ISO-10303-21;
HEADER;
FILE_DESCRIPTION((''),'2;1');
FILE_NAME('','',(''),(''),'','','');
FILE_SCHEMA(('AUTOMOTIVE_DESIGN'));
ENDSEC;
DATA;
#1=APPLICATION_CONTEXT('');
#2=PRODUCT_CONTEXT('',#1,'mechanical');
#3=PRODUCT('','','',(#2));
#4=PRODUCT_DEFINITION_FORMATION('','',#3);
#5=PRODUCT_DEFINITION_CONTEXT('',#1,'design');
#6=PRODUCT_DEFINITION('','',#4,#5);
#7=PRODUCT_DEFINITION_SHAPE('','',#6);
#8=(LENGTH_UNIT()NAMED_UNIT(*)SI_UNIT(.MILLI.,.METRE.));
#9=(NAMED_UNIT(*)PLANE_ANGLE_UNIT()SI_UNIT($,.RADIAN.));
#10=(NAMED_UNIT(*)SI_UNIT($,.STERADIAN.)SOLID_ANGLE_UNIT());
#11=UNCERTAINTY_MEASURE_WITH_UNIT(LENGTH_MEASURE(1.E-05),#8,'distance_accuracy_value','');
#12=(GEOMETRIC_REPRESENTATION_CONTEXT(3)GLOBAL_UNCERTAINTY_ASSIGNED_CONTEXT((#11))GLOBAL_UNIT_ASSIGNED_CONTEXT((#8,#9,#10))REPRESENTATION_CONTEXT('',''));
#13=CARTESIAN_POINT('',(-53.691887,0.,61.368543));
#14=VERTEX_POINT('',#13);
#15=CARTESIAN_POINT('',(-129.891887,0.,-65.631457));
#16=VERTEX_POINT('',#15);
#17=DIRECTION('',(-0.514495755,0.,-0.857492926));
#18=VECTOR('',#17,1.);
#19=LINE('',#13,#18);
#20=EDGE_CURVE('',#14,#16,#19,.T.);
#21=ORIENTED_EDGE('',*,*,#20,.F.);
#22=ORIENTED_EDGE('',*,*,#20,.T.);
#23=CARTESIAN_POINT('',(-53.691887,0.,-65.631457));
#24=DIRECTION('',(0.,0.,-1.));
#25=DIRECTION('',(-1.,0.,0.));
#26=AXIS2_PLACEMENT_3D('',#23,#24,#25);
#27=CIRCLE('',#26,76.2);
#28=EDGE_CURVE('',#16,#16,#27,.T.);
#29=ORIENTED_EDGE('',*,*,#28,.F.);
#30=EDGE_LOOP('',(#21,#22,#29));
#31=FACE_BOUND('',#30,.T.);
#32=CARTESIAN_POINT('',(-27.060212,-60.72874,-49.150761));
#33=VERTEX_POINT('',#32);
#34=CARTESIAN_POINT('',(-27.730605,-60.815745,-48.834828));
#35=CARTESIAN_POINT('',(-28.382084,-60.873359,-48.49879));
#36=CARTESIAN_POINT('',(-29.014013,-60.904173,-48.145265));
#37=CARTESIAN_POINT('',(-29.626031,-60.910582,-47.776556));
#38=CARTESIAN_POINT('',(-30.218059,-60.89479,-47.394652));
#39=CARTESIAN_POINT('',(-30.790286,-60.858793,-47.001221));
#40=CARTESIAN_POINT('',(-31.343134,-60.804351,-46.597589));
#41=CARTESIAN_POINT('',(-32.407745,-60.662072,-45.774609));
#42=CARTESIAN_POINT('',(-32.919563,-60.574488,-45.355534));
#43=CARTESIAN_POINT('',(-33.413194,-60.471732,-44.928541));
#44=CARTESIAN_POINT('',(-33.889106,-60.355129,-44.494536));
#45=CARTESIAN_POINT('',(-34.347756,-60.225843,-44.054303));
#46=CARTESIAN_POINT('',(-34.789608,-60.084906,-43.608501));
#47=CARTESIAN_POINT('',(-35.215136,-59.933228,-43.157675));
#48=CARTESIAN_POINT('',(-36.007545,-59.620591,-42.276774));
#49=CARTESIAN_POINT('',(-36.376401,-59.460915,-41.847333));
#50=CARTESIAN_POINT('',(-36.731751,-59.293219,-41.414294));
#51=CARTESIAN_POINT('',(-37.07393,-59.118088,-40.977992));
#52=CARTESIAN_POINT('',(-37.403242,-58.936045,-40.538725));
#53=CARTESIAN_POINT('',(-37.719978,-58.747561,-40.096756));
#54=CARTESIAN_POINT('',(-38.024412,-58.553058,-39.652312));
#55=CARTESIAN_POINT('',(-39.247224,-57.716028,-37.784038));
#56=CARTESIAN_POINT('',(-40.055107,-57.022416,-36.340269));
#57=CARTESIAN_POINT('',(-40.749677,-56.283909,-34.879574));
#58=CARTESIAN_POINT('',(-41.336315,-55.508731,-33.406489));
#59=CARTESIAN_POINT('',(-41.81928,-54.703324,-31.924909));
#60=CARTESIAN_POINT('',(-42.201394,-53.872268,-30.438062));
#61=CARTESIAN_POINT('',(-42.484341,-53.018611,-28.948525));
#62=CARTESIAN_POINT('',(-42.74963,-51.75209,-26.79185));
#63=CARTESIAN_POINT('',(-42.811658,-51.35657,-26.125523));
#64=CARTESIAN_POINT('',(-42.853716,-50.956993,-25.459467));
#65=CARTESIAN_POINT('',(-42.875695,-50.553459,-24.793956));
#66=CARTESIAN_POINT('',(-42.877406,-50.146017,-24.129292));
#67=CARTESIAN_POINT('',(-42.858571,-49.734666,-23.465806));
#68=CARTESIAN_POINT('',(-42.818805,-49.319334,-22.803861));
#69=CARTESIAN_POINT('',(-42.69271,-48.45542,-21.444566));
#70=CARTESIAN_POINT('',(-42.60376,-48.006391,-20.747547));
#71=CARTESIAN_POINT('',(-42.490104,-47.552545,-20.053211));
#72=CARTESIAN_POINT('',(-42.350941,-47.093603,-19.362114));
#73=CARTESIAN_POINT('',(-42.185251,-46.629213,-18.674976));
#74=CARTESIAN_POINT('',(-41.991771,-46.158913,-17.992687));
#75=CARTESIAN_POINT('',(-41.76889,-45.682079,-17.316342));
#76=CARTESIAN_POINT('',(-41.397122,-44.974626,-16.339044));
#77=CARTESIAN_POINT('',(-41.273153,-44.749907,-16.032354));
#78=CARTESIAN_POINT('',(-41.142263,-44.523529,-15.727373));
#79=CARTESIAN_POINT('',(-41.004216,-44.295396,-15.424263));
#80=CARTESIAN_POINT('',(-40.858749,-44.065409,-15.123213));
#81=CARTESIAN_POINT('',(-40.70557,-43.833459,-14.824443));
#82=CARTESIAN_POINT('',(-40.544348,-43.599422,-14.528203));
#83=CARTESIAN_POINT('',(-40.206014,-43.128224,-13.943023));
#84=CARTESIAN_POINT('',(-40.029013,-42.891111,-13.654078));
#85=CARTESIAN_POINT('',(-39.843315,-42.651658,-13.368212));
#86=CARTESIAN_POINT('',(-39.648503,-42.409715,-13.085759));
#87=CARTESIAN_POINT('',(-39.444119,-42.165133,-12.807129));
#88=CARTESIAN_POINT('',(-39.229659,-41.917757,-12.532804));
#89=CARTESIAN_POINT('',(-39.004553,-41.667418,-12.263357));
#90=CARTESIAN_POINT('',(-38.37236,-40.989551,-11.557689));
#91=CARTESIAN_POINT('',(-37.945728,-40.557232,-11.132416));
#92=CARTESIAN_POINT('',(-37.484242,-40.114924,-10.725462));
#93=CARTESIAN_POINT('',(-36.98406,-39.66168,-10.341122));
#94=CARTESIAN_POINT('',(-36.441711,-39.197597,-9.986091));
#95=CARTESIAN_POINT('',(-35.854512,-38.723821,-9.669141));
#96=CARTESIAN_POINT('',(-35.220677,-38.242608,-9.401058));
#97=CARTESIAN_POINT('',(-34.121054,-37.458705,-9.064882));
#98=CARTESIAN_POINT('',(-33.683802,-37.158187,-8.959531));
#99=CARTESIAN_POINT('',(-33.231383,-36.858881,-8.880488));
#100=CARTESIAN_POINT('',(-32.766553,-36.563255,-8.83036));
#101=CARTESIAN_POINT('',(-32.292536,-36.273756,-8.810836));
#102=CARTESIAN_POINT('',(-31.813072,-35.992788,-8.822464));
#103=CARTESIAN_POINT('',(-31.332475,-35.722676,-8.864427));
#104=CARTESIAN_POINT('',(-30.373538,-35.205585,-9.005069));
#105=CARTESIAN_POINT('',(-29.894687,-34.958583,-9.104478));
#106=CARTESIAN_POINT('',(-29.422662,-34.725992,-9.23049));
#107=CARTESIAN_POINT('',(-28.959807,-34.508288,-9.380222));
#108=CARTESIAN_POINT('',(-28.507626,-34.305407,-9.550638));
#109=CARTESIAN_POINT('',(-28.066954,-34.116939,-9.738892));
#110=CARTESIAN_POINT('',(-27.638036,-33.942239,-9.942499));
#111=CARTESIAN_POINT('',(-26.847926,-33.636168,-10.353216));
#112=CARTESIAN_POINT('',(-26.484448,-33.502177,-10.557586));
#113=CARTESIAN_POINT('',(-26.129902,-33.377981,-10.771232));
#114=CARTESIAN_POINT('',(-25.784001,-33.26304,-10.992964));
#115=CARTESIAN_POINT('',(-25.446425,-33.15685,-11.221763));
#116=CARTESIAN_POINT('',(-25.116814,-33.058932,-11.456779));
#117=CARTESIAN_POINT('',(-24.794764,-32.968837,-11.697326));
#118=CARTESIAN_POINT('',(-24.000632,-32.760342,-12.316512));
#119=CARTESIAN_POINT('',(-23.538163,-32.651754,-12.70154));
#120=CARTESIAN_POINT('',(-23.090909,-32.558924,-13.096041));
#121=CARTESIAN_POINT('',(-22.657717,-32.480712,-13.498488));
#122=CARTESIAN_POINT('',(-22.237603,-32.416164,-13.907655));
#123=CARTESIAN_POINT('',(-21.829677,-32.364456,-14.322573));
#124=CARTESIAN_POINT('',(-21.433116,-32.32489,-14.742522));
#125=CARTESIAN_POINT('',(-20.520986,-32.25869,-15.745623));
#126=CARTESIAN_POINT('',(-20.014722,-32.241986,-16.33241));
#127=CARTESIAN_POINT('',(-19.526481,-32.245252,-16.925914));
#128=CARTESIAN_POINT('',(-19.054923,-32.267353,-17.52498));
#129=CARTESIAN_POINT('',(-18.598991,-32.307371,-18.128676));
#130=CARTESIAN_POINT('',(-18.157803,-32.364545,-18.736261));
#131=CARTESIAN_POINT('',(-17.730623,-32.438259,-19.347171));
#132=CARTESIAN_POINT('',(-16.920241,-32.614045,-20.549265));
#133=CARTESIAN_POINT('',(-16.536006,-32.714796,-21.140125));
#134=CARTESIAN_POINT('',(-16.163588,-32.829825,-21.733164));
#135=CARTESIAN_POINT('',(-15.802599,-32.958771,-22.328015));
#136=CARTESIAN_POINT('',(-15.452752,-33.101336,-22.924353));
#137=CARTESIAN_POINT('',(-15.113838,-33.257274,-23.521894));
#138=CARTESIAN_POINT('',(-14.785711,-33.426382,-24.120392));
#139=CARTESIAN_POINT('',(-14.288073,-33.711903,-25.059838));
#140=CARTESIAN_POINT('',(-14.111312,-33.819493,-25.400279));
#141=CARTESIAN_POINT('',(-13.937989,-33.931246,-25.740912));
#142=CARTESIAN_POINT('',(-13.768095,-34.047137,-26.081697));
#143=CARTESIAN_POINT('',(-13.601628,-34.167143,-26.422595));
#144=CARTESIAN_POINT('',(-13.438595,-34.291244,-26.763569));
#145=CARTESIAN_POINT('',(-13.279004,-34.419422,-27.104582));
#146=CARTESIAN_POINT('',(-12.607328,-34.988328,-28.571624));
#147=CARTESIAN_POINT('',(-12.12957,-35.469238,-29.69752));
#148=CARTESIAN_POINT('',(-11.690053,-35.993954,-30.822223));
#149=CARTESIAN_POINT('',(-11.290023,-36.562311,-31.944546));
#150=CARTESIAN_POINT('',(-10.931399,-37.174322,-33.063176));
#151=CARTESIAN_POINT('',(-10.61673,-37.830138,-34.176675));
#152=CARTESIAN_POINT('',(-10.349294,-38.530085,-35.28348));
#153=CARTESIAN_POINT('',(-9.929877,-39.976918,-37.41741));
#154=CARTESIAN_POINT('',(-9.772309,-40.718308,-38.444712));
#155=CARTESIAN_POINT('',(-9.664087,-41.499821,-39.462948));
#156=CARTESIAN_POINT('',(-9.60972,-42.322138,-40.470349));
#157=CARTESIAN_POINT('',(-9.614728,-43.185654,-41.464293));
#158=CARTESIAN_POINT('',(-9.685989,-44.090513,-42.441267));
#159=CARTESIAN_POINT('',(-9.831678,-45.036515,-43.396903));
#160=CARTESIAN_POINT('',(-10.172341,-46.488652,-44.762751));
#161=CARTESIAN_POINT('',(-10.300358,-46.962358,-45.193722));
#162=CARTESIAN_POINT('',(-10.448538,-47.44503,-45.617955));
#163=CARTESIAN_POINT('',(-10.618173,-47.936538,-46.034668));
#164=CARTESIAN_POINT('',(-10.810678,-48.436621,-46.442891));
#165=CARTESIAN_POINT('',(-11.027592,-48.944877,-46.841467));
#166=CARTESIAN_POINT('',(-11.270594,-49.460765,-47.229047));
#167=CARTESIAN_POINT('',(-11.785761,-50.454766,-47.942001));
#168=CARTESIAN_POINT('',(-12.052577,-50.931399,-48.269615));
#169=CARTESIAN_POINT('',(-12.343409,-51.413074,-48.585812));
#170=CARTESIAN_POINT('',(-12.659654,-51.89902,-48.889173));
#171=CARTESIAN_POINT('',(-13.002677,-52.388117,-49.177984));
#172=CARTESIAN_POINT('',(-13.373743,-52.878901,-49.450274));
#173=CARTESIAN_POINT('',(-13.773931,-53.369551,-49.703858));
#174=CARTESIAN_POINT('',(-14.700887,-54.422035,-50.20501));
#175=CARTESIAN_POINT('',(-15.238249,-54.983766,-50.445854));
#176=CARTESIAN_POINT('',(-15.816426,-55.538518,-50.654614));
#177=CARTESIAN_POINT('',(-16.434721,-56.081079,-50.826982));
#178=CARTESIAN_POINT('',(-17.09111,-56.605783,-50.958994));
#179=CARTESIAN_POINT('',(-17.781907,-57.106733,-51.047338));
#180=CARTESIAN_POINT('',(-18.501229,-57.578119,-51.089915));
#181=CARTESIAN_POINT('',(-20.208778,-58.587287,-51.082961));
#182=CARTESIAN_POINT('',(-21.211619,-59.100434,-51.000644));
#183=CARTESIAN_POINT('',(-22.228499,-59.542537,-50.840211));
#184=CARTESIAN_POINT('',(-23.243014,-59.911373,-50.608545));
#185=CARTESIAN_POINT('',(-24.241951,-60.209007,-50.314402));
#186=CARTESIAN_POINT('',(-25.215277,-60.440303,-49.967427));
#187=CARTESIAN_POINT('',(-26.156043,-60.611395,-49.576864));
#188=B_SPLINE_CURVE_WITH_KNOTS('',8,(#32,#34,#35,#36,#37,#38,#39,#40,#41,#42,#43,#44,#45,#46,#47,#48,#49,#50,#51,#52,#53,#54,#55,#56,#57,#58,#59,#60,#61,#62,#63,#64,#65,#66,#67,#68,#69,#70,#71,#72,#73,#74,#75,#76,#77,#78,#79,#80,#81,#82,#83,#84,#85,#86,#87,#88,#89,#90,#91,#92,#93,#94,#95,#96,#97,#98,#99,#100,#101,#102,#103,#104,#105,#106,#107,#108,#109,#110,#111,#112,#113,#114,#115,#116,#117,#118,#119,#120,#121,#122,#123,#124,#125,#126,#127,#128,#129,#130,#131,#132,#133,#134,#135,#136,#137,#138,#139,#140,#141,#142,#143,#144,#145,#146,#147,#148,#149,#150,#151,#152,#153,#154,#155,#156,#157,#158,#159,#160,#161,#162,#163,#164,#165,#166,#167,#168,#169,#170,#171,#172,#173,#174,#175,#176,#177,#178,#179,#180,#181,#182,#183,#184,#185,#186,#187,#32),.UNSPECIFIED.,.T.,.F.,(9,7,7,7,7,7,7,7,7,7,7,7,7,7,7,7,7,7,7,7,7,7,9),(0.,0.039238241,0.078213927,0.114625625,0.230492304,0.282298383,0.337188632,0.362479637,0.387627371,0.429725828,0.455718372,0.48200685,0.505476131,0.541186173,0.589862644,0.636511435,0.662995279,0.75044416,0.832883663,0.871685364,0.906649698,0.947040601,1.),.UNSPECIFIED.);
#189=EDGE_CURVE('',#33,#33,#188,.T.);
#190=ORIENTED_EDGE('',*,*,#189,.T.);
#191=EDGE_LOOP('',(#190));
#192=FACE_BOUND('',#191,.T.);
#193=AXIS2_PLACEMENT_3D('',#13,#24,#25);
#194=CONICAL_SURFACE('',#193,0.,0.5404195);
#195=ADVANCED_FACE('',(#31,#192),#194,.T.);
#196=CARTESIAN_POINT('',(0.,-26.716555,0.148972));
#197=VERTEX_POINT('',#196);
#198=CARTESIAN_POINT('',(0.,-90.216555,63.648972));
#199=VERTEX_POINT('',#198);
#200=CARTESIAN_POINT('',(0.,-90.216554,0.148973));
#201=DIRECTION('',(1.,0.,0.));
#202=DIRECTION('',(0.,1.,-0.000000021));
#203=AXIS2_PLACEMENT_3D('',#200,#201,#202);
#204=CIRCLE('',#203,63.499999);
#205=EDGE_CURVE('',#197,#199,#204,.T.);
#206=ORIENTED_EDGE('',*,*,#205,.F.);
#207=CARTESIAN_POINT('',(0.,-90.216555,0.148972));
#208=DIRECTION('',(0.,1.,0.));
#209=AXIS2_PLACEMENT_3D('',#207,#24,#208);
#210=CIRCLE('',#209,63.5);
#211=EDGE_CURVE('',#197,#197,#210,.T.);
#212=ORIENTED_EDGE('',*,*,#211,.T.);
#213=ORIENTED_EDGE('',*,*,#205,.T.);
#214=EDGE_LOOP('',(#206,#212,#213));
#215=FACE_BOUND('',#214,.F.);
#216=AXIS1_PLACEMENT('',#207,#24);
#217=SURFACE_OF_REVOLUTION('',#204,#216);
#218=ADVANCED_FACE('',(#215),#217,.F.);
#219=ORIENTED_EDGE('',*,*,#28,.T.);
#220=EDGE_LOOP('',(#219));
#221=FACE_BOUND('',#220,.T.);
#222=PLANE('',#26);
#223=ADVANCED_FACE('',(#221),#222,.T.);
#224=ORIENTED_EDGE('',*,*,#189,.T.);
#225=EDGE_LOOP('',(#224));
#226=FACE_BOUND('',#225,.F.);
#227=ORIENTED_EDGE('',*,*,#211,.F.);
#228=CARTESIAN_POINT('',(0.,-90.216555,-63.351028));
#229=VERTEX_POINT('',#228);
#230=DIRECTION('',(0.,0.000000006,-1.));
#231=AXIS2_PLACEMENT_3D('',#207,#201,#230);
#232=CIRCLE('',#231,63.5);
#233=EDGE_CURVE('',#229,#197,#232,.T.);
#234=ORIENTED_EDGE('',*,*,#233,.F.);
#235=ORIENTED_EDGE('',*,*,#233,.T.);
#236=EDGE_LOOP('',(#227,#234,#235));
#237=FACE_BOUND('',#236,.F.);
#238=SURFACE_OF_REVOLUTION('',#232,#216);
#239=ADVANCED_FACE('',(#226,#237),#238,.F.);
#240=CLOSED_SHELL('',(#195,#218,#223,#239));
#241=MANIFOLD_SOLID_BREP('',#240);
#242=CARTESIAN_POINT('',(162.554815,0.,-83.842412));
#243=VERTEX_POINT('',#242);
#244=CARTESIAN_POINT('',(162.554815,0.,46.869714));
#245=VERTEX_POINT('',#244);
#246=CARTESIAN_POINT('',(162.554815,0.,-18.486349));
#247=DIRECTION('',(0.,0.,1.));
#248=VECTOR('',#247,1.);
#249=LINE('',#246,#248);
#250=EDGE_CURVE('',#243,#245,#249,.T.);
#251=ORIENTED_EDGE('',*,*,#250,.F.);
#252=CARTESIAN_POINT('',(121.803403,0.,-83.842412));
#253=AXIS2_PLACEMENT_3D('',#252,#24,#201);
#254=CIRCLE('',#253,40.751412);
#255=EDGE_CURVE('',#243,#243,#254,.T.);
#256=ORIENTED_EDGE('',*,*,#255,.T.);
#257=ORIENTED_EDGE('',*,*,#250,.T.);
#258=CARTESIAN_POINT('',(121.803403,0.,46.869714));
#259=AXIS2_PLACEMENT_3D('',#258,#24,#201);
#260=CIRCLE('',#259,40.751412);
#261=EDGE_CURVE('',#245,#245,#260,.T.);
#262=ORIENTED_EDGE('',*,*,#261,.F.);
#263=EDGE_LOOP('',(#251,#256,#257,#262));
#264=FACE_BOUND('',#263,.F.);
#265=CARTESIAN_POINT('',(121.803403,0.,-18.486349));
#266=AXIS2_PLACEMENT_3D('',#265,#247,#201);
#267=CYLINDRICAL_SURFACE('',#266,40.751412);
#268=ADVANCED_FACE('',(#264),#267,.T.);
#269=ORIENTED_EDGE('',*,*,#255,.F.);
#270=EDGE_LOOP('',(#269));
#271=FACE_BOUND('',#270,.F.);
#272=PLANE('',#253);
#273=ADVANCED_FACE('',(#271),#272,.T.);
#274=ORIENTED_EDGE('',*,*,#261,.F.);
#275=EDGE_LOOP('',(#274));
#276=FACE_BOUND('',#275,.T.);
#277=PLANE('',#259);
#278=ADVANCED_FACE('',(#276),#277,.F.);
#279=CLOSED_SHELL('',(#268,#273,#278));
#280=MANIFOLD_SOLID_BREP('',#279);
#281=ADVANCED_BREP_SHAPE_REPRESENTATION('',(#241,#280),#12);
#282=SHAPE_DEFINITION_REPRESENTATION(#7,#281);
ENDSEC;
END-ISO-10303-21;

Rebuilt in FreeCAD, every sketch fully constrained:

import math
import FreeCAD as App
import Part
import Sketcher

V = App.Vector
Q = App.Units.Quantity


def add_polygon(sketch, points):
    """Adds a closed chain of lines whose ends are joined by coincident constraints."""
    first, n = sketch.GeometryCount, len(points)
    for a, b in zip(points, points[1:] + points[:1]):
        sketch.addGeometry(Part.LineSegment(App.Vector(*a, 0), App.Vector(*b, 0)), False)
    for i in range(n):
        sketch.addConstraint(Sketcher.Constraint("Coincident", first + i, 2, first + (i + 1) % n, 1))

doc = App.newDocument("Part")
body = doc.addObject("PartDesign::Body", "Body")

sketch1 = doc.addObject("Sketcher::SketchObject", "Sketch")
body.addObject(sketch1)
sketch1.AttachmentSupport = (doc.XZ_Plane, [""])
sketch1.MapMode = "FlatFace"
add_polygon(sketch1, [(-54, -66), (-54, 61), (-130, -66)])
sketch1.addGeometry(Part.LineSegment(V(-54, 61, 0), V(-54, -66, 0)), True)
sketch1.addConstraint(Sketcher.Constraint("Vertical", 0))
sketch1.addConstraint(Sketcher.Constraint("Horizontal", 2))
sketch1.addConstraint(Sketcher.Constraint("Vertical", 3))
sketch1.addConstraint(Sketcher.Constraint("Coincident", 3, 1, 0, 2))
sketch1.addConstraint(Sketcher.Constraint("Horizontal", 1, 2, 3, 2))
sketch1.addConstraint(Sketcher.Constraint("DistanceX", 2, 1, 2, 2, Q("3 in")))
sketch1.addConstraint(Sketcher.Constraint("DistanceY", 0, 1, 0, 2, Q("5 in")))
sketch1.addConstraint(Sketcher.Constraint("DistanceX", 0, 2, -1, 1, 53.691887))
sketch1.addConstraint(Sketcher.Constraint("DistanceY", -1, 1, 0, 2, 61.368543))
revolution = doc.addObject("PartDesign::Revolution", "Revolution")
body.addObject(revolution)
revolution.Profile = sketch1
revolution.ReferenceAxis = (sketch1, ["Axis0"])
revolution.Angle = 360

sketch2 = doc.addObject("Sketcher::SketchObject", "Sketch001")
body.addObject(sketch2)
sketch2.AttachmentSupport = (doc.YZ_Plane, [""])
sketch2.MapMode = "FlatFace"
sketch2.addGeometry(Part.ArcOfCircle(Part.Circle(V(-90, 0, 0), V(0, 0, 1), 63), math.radians(0), math.radians(90)), False)
sketch2.addGeometry(Part.LineSegment(V(-90, 64, 0), V(-90, -63, 0)), False)
sketch2.addGeometry(Part.ArcOfCircle(Part.Circle(V(-90, 0, 0), V(0, 0, 1), 64), math.radians(-90), math.radians(0)), False)
sketch2.addGeometry(Part.LineSegment(V(-90, 64, 0), V(-90, -63, 0)), True)
sketch2.addConstraint(Sketcher.Constraint("Coincident", 0, 2, 1, 1))
sketch2.addConstraint(Sketcher.Constraint("Coincident", 1, 2, 2, 1))
sketch2.addConstraint(Sketcher.Constraint("Tangent", 2, 2, 0, 1))
sketch2.addConstraint(Sketcher.Constraint("Vertical", 1))
sketch2.addConstraint(Sketcher.Constraint("Vertical", 3))
sketch2.addConstraint(Sketcher.Constraint("Coincident", 3, 1, 0, 2))
sketch2.addConstraint(Sketcher.Constraint("Equal", 0, 2))
sketch2.addConstraint(Sketcher.Constraint("Horizontal", 0, 3, 2, 2))
sketch2.addConstraint(Sketcher.Constraint("Vertical", 2, 3, 0, 2))
sketch2.addConstraint(Sketcher.Constraint("Equal", 1, 3))
sketch2.addConstraint(Sketcher.Constraint("Radius", 0, Q("2.4999999 in")))
sketch2.addConstraint(Sketcher.Constraint("DistanceY", -1, 1, 0, 2, 63.648972))
sketch2.addConstraint(Sketcher.Constraint("DistanceX", 0, 3, -1, 1, 90.216554))
revolution2 = doc.addObject("PartDesign::Revolution", "Revolution001")
body.addObject(revolution2)
revolution2.Profile = sketch2
revolution2.ReferenceAxis = (sketch2, ["Axis0"])
revolution2.Angle = 360
body2 = doc.addObject("PartDesign::Body", "Body001")

sketch3 = doc.addObject("Sketcher::SketchObject", "Sketch002")
body2.addObject(sketch3)
sketch3.AttachmentSupport = (doc.getObject("XZ_Plane001"), [""])
sketch3.MapMode = "FlatFace"
add_polygon(sketch3, [(122, 47), (122, -84), (163, -84), (163, 47)])
sketch3.addGeometry(Part.LineSegment(V(122, 47, 0), V(122, -84, 0)), True)
sketch3.addConstraint(Sketcher.Constraint("Vertical", 0))
sketch3.addConstraint(Sketcher.Constraint("Horizontal", 1))
sketch3.addConstraint(Sketcher.Constraint("Vertical", 2))
sketch3.addConstraint(Sketcher.Constraint("Horizontal", 3))
sketch3.addConstraint(Sketcher.Constraint("Vertical", 4))
sketch3.addConstraint(Sketcher.Constraint("Coincident", 4, 1, 3, 2))
sketch3.addConstraint(Sketcher.Constraint("Horizontal", 1, 2, 4, 2))
sketch3.addConstraint(Sketcher.Constraint("DistanceX", 1, 1, 1, 2, 40.751412))
sketch3.addConstraint(Sketcher.Constraint("DistanceY", 0, 2, 0, 1, 130.712126))
sketch3.addConstraint(Sketcher.Constraint("DistanceY", 0, 2, -1, 1, 83.842412))
sketch3.addConstraint(Sketcher.Constraint("DistanceX", -1, 1, 0, 2, 121.803403))
revolution3 = doc.addObject("PartDesign::Revolution", "Revolution002")
body2.addObject(revolution3)
revolution3.Profile = sketch3
revolution3.ReferenceAxis = (sketch3, ["Axis0"])
revolution3.Angle = 360

doc.recompute()
